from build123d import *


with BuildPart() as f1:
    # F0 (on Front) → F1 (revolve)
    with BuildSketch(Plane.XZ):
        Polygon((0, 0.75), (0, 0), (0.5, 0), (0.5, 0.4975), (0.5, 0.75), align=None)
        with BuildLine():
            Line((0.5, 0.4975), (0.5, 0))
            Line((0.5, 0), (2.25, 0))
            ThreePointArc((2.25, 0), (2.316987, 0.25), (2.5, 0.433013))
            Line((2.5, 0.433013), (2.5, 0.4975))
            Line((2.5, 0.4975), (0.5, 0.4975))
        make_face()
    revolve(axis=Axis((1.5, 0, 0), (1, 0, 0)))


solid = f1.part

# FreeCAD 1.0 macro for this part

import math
import FreeCAD as App
import Part
import Sketcher

doc = App.newDocument("Part")
body = doc.addObject("PartDesign::Body", "Body")

# Sketch on XZ plane
sketch1 = doc.addObject("Sketcher::SketchObject", "Sketch")
body.addObject(sketch1)
sketch1.AttachmentSupport = (doc.XZ_Plane, [""])
sketch1.MapMode = "FlatFace"
sketch1.addGeometry([
    Part.LineSegment(App.Vector(0, 0.75, 0), App.Vector(0, 0, 0)),  # 0
    Part.LineSegment(App.Vector(0, 0, 0), App.Vector(2.25, 0, 0)),  # 1
    Part.ArcOfCircle(Part.Circle(App.Vector(2.75, 0, 0), App.Vector(0, 0, 1), 0.5), math.radians(120), math.radians(180)),  # 2
    Part.LineSegment(App.Vector(2.5, 0.43, 0), App.Vector(2.5, 0.5, 0)),  # 3
    Part.LineSegment(App.Vector(2.5, 0.5, 0), App.Vector(0.5, 0.5, 0)),  # 4
    Part.LineSegment(App.Vector(0.5, 0.5, 0), App.Vector(0.5, 0.75, 0)),  # 5
    Part.LineSegment(App.Vector(0.5, 0.75, 0), App.Vector(0, 0.75, 0)),  # 6
], False)
sketch1.addConstraint([
    Sketcher.Constraint("Coincident", 0, 2, 1, 1),
    Sketcher.Constraint("Coincident", 1, 2, 2, 2),
    Sketcher.Constraint("Coincident", 2, 1, 3, 1),
    Sketcher.Constraint("Coincident", 3, 2, 4, 1),
    Sketcher.Constraint("Coincident", 4, 2, 5, 1),
    Sketcher.Constraint("Coincident", 5, 2, 6, 1),
    Sketcher.Constraint("Coincident", 6, 2, 0, 1),
    Sketcher.Constraint("Vertical", 0),
    Sketcher.Constraint("Horizontal", 1),
    Sketcher.Constraint("Vertical", 3),
    Sketcher.Constraint("Horizontal", 4),
    Sketcher.Constraint("Vertical", 5),
    Sketcher.Constraint("Horizontal", 6),
    Sketcher.Constraint("Coincident", 0, 2, -1, 1),
    Sketcher.Constraint("PointOnObject", 2, 3, -1),
    Sketcher.Constraint("Radius", 2, 0.499999),
    Sketcher.Constraint("DistanceX", 4, 2, 4, 1, 2.0),
    Sketcher.Constraint("DistanceX", 6, 2, 6, 1, 0.5),
    Sketcher.Constraint("DistanceX", 1, 1, 1, 2, 2.25),
    Sketcher.Constraint("DistanceY", 0, 2, 0, 1, 0.75),
    Sketcher.Constraint("DistanceY", 5, 1, 5, 2, 0.2525),
])
revolution = doc.addObject("PartDesign::Revolution", "Revolution")
body.addObject(revolution)
revolution.Profile = sketch1
revolution.ReferenceAxis = (sketch1, ["H_Axis"])
revolution.Angle = 360

doc.recompute()
